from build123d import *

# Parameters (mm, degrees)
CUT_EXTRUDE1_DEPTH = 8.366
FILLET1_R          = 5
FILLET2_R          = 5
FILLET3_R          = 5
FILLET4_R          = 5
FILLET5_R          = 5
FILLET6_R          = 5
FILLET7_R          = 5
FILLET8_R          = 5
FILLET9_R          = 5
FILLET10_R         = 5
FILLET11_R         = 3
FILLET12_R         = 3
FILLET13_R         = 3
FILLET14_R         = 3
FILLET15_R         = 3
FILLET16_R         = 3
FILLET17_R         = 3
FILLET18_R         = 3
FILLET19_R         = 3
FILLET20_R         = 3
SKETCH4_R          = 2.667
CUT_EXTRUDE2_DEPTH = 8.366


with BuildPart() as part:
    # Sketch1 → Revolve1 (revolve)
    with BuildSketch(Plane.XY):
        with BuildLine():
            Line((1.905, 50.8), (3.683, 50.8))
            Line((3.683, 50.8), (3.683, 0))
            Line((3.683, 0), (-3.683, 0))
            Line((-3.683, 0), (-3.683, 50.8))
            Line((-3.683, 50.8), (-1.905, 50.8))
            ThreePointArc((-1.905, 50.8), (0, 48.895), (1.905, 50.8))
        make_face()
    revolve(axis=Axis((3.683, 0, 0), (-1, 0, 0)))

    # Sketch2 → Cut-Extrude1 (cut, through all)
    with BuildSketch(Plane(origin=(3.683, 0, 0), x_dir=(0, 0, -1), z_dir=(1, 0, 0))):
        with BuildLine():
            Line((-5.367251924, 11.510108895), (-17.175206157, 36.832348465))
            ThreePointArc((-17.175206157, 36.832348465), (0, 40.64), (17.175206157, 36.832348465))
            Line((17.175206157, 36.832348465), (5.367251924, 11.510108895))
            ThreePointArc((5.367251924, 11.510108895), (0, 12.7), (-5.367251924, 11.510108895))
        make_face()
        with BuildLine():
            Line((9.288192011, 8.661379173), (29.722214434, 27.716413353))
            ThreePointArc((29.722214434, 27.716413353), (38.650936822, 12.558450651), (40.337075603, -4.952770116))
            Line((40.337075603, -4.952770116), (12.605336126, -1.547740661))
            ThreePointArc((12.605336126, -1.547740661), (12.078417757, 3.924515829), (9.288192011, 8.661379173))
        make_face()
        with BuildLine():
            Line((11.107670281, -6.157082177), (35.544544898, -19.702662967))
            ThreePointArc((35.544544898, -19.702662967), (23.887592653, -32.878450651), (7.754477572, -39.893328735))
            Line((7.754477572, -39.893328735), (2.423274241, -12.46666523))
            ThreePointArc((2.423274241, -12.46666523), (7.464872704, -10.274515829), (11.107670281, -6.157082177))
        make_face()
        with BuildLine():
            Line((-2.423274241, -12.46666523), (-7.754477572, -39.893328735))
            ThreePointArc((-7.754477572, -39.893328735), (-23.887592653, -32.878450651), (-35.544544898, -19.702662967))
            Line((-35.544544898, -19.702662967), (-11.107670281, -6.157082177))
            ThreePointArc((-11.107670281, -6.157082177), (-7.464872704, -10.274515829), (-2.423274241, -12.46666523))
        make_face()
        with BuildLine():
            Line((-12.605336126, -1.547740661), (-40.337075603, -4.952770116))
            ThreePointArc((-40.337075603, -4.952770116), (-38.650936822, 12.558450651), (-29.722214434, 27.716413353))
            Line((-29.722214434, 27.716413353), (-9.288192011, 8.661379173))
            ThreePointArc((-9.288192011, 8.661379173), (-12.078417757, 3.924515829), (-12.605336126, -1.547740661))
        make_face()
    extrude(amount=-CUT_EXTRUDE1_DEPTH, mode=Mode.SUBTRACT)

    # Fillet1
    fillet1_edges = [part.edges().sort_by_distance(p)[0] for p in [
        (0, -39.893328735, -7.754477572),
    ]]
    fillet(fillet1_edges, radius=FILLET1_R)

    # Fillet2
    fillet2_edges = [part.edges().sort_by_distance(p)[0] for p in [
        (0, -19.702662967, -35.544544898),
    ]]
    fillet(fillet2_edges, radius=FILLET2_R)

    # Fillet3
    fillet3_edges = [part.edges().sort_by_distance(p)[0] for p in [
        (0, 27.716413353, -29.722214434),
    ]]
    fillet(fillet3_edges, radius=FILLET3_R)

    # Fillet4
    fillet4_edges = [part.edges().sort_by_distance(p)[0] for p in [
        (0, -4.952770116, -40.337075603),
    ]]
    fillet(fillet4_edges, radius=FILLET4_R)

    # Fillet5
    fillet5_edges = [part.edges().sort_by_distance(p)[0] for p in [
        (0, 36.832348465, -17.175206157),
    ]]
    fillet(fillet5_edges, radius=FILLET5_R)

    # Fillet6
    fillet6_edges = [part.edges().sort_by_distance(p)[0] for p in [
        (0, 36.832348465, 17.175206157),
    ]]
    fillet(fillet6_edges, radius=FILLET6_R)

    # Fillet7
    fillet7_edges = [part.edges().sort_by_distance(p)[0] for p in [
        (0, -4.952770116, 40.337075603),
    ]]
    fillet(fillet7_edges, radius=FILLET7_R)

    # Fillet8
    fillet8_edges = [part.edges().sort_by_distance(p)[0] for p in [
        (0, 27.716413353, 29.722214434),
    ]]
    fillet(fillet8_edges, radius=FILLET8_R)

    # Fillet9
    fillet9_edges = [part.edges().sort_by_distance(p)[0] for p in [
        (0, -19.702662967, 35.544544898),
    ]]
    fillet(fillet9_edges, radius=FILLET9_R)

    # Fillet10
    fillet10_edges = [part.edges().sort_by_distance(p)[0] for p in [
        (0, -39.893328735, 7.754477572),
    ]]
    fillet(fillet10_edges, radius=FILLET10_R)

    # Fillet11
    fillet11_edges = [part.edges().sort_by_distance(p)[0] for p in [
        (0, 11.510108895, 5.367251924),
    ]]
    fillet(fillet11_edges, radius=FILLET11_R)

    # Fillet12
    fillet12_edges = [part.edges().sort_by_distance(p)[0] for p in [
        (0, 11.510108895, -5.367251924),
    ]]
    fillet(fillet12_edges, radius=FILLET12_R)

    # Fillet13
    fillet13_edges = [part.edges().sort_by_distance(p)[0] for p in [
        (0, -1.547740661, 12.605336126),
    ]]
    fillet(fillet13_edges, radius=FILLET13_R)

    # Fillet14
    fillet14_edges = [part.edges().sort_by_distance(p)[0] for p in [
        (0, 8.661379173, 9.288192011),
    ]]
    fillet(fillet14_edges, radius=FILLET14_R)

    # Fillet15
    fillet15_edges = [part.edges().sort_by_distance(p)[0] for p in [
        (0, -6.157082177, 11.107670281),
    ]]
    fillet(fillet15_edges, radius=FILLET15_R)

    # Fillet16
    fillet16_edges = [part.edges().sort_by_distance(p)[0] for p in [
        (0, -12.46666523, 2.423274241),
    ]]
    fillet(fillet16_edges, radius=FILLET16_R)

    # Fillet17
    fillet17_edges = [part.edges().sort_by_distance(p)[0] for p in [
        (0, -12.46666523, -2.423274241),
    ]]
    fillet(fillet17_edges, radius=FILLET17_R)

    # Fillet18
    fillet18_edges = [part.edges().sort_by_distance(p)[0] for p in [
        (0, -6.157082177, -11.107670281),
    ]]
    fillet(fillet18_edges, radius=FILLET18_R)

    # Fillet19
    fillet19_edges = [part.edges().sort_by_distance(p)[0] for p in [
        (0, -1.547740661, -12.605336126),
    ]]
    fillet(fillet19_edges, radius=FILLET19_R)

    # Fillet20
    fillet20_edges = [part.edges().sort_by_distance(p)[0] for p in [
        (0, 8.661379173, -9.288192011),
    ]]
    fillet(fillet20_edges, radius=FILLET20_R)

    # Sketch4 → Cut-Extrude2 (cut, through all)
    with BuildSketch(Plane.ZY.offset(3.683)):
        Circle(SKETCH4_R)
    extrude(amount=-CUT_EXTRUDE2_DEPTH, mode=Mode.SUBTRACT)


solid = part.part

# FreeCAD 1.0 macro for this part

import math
import FreeCAD as App
import Part
import Sketcher
from FreeCAD import Vector
Q = App.Units.Quantity


def edges_at(feature, points):
    """Names of the edges that pass closest to the given points."""
    edges = feature.Shape.Edges
    near = lambda p: min(range(len(edges)), key=lambda i: edges[i].distToShape(Part.Vertex(*p))[0])
    return sorted({f"Edge{near(p) + 1}" for p in points})

doc = App.newDocument("Part")
body = doc.addObject("PartDesign::Body", "Body")

# Sketch on XY plane
sketch1 = body.newObject("Sketcher::SketchObject", "Sketch")
sketch1.AttachmentSupport = (doc.getObject("XY_Plane"), [""])
sketch1.MapMode = "FlatFace"
sketch1.addGeometry(Part.LineSegment(Vector(3.7, 50.8, 0), Vector(1.9, 50.8, 0)), False)
sketch1.addGeometry(Part.ArcOfCircle(Part.Circle(Vector(0, 50.8, 0), Vector(0, 0, 1), 1.9), math.radians(180), math.radians(360)), False)
sketch1.addGeometry(Part.LineSegment(Vector(-1.9, 50.8, 0), Vector(-3.7, 50.8, 0)), False)
sketch1.addGeometry(Part.LineSegment(Vector(-3.7, 50.8, 0), Vector(-3.7, 0, 0)), False)
sketch1.addGeometry(Part.LineSegment(Vector(-3.7, 0, 0), Vector(3.7, 0, 0)), False)
sketch1.addGeometry(Part.LineSegment(Vector(3.7, 0, 0), Vector(3.7, 50.8, 0)), False)
sketch1.addConstraint(Sketcher.Constraint("Coincident", 0, 2, 1, 2))
sketch1.addConstraint(Sketcher.Constraint("Coincident", 1, 1, 2, 1))
sketch1.addConstraint(Sketcher.Constraint("Coincident", 2, 2, 3, 1))
sketch1.addConstraint(Sketcher.Constraint("Coincident", 3, 2, 4, 1))
sketch1.addConstraint(Sketcher.Constraint("Coincident", 4, 2, 5, 1))
sketch1.addConstraint(Sketcher.Constraint("Coincident", 5, 2, 0, 1))
sketch1.addConstraint(Sketcher.Constraint("Horizontal", 0))
sketch1.addConstraint(Sketcher.Constraint("Horizontal", 2))
sketch1.addConstraint(Sketcher.Constraint("Vertical", 3))
sketch1.addConstraint(Sketcher.Constraint("Horizontal", 4))
sketch1.addConstraint(Sketcher.Constraint("Vertical", 5))
sketch1.addConstraint(Sketcher.Constraint("Symmetric", 3, 2, 4, 2, -1, 1))
sketch1.addConstraint(Sketcher.Constraint("Symmetric", 0, 2, 1, 1, -2))
sketch1.addConstraint(Sketcher.Constraint("Horizontal", 1, 3, 0, 2))
sketch1.addConstraint(Sketcher.Constraint("DistanceY", 3, 2, 3, 1, Q("2 in")))
sketch1.addConstraint(Sketcher.Constraint("Radius", 1, Q("0.075 in")))
sketch1.addConstraint(Sketcher.Constraint("DistanceX", 0, 2, 0, 1, Q("0.07 in")))
revolution = body.newObject("PartDesign::Revolution", "Revolution")
revolution.Profile = sketch1
revolution.ReferenceAxis = (sketch1, ["H_Axis"])
revolution.Angle = 360

# Sketch on YZ plane
sketch2 = body.newObject("Sketcher::SketchObject", "Sketch001")
sketch2.AttachmentSupport = (doc.getObject("YZ_Plane"), [""])
sketch2.MapMode = "FlatFace"
sketch2.AttachmentOffset = App.Placement(Vector(0, 0, 0.145 * 25.4), App.Rotation())
sketch2.addGeometry(Part.LineSegment(Vector(37, 17, 0), Vector(12, 5, 0)), False)
sketch2.addGeometry(Part.ArcOfCircle(Part.Circle(Vector(0, 0, 0), Vector(0, 0, 1), 13), math.radians(-25), math.radians(25)), False)
sketch2.addGeometry(Part.LineSegment(Vector(12, -5, 0), Vector(37, -17, 0)), False)
sketch2.addGeometry(Part.ArcOfCircle(Part.Circle(Vector(0, 0, 0), Vector(0, 0, 1), 41), math.radians(-25), math.radians(25)), False)
sketch2.addGeometry(Part.LineSegment(Vector(28, -30, 0), Vector(9, -9, 0)), False)
sketch2.addGeometry(Part.ArcOfCircle(Part.Circle(Vector(0, 0, 0), Vector(0, 0, 1), 13), math.radians(-97), math.radians(-47)), False)
sketch2.addGeometry(Part.LineSegment(Vector(-2, -13, 0), Vector(-5, -40, 0)), False)
sketch2.addGeometry(Part.ArcOfCircle(Part.Circle(Vector(0, 0, 0), Vector(0, 0, 1), 41), math.radians(-97), math.radians(-47)), False)
sketch2.addGeometry(Part.LineSegment(Vector(-20, -36, 0), Vector(-6, -11, 0)), False)
sketch2.addGeometry(Part.ArcOfCircle(Part.Circle(Vector(0, 0, 0), Vector(0, 0, 1), 13), math.radians(-169), math.radians(-119)), False)
sketch2.addGeometry(Part.LineSegment(Vector(-12, -2, 0), Vector(-40, -8, 0)), False)
sketch2.addGeometry(Part.ArcOfCircle(Part.Circle(Vector(0, 0, 0), Vector(0, 0, 1), 41), math.radians(-169), math.radians(-119)), False)
sketch2.addGeometry(Part.LineSegment(Vector(-40, 8, 0), Vector(-12, 2, 0)), False)
sketch2.addGeometry(Part.ArcOfCircle(Part.Circle(Vector(0, 0, 0), Vector(0, 0, 1), 13), math.radians(119), math.radians(169)), False)
sketch2.addGeometry(Part.LineSegment(Vector(-6, 11, 0), Vector(-20, 36, 0)), False)
sketch2.addGeometry(Part.ArcOfCircle(Part.Circle(Vector(0, 0, 0), Vector(0, 0, 1), 41), math.radians(119), math.radians(169)), False)
sketch2.addGeometry(Part.LineSegment(Vector(-5, 40, 0), Vector(-2, 13, 0)), False)
sketch2.addGeometry(Part.ArcOfCircle(Part.Circle(Vector(0, 0, 0), Vector(0, 0, 1), 13), math.radians(47), math.radians(97)), False)
sketch2.addGeometry(Part.LineSegment(Vector(9, 9, 0), Vector(28, 30, 0)), False)
sketch2.addGeometry(Part.ArcOfCircle(Part.Circle(Vector(0, 0, 0), Vector(0, 0, 1), 41), math.radians(47), math.radians(97)), False)
sketch2.addConstraint(Sketcher.Constraint("Coincident", 0, 2, 1, 2))
sketch2.addConstraint(Sketcher.Constraint("Coincident", 1, 1, 2, 1))
sketch2.addConstraint(Sketcher.Constraint("Coincident", 2, 2, 3, 1))
sketch2.addConstraint(Sketcher.Constraint("Coincident", 3, 2, 0, 1))
sketch2.addConstraint(Sketcher.Constraint("Coincident", 4, 2, 5, 2))
sketch2.addConstraint(Sketcher.Constraint("Coincident", 5, 1, 6, 1))
sketch2.addConstraint(Sketcher.Constraint("Coincident", 6, 2, 7, 1))
sketch2.addConstraint(Sketcher.Constraint("Coincident", 7, 2, 4, 1))
sketch2.addConstraint(Sketcher.Constraint("Coincident", 8, 2, 9, 2))
sketch2.addConstraint(Sketcher.Constraint("Coincident", 9, 1, 10, 1))
sketch2.addConstraint(Sketcher.Constraint("Coincident", 10, 2, 11, 1))
sketch2.addConstraint(Sketcher.Constraint("Coincident", 11, 2, 8, 1))
sketch2.addConstraint(Sketcher.Constraint("Coincident", 12, 2, 13, 2))
sketch2.addConstraint(Sketcher.Constraint("Coincident", 13, 1, 14, 1))
sketch2.addConstraint(Sketcher.Constraint("Coincident", 14, 2, 15, 1))
sketch2.addConstraint(Sketcher.Constraint("Coincident", 15, 2, 12, 1))
sketch2.addConstraint(Sketcher.Constraint("Coincident", 16, 2, 17, 2))
sketch2.addConstraint(Sketcher.Constraint("Coincident", 17, 1, 18, 1))
sketch2.addConstraint(Sketcher.Constraint("Coincident", 18, 2, 19, 1))
sketch2.addConstraint(Sketcher.Constraint("Coincident", 19, 2, 16, 1))
sketch2.addConstraint(Sketcher.Constraint("Coincident", 1, 3, -1, 1))
sketch2.addConstraint(Sketcher.Constraint("Coincident", 3, 3, -1, 1))
sketch2.addConstraint(Sketcher.Constraint("Coincident", 5, 3, -1, 1))
sketch2.addConstraint(Sketcher.Constraint("Coincident", 7, 3, -1, 1))
sketch2.addConstraint(Sketcher.Constraint("Coincident", 9, 3, -1, 1))
sketch2.addConstraint(Sketcher.Constraint("Coincident", 11, 3, -1, 1))
sketch2.addConstraint(Sketcher.Constraint("Coincident", 13, 3, -1, 1))
sketch2.addConstraint(Sketcher.Constraint("Coincident", 15, 3, -1, 1))
sketch2.addConstraint(Sketcher.Constraint("Coincident", 17, 3, -1, 1))
sketch2.addConstraint(Sketcher.Constraint("Coincident", 19, 3, -1, 1))
sketch2.addConstraint(Sketcher.Constraint("Equal", 1, 5))
sketch2.addConstraint(Sketcher.Constraint("Equal", 3, 7))
sketch2.addConstraint(Sketcher.Constraint("Equal", 5, 9))
sketch2.addConstraint(Sketcher.Constraint("Equal", 7, 11))
sketch2.addConstraint(Sketcher.Constraint("Equal", 9, 13))
sketch2.addConstraint(Sketcher.Constraint("Equal", 11, 15))
sketch2.addConstraint(Sketcher.Constraint("Equal", 13, 17))
sketch2.addConstraint(Sketcher.Constraint("Equal", 15, 19))
sketch2.addConstraint(Sketcher.Constraint("Vertical", 0, 2, 1, 1))
sketch2.addConstraint(Sketcher.Constraint("Vertical", 2, 2, 3, 2))
sketch2.addConstraint(Sketcher.Constraint("Vertical", 9, 1, 12, 2))
sketch2.addConstraint(Sketcher.Constraint("Vertical", 8, 2, 13, 1))
sketch2.addConstraint(Sketcher.Constraint("Vertical", 11, 2, 14, 2))
sketch2.addConstraint(Sketcher.Constraint("Vertical", 10, 2, 15, 2))
sketch2.addConstraint(Sketcher.Constraint("Vertical", 5, 1, 16, 2))
sketch2.addConstraint(Sketcher.Constraint("Vertical", 4, 2, 17, 1))
sketch2.addConstraint(Sketcher.Constraint("Vertical", 7, 2, 18, 2))
sketch2.addConstraint(Sketcher.Constraint("Vertical", 6, 2, 19, 2))
sketch2.addConstraint(Sketcher.Constraint("Radius", 1, Q("0.5 in")))
sketch2.addConstraint(Sketcher.Constraint("Radius", 3, Q("1.6 in")))
sketch2.addConstraint(Sketcher.Constraint("Angle", 0, Q("-155 deg")))
sketch2.addConstraint(Sketcher.Constraint("Angle", 4, Q("133 deg")))
sketch2.addConstraint(Sketcher.Constraint("Angle", 6, Q("-97 deg")))
sketch2.addConstraint(Sketcher.Constraint("Angle", 8, Q("61 deg")))
sketch2.addConstraint(Sketcher.Constraint("Angle", 10, Q("-169 deg")))
sketch2.addConstraint(Sketcher.Constraint("DistanceX", -1, 1, 0, 2, 11.510109))
sketch2.addConstraint(Sketcher.Constraint("DistanceX", -1, 1, 4, 2, 8.661379))
sketch2.addConstraint(Sketcher.Constraint("DistanceX", 5, 1, -1, 1, 1.547741))
sketch2.addConstraint(Sketcher.Constraint("DistanceY", 8, 2, -1, 1, 11.10767))
sketch2.addConstraint(Sketcher.Constraint("DistanceX", 10, 2, -1, 1, 39.893329))
pocket1 = body.newObject("PartDesign::Pocket", "Pocket")
pocket1.Profile = sketch2
pocket1.Type = "ThroughAll"
doc.recompute()

fillet = body.newObject("PartDesign::Fillet", "Fillet")
fillet.Base = (pocket1, edges_at(pocket1, [(0, -39.893, -7.754)]))
fillet.Radius = 5
doc.recompute()

fillet2 = body.newObject("PartDesign::Fillet", "Fillet001")
fillet2.Base = (fillet, edges_at(fillet, [(0, -19.703, -35.545)]))
fillet2.Radius = 5
doc.recompute()

fillet3 = body.newObject("PartDesign::Fillet", "Fillet002")
fillet3.Base = (fillet2, edges_at(fillet2, [(0, 27.716, -29.722)]))
fillet3.Radius = 5
doc.recompute()

fillet4 = body.newObject("PartDesign::Fillet", "Fillet003")
fillet4.Base = (fillet3, edges_at(fillet3, [(0, -4.953, -40.337)]))
fillet4.Radius = 5
doc.recompute()

fillet5 = body.newObject("PartDesign::Fillet", "Fillet004")
fillet5.Base = (fillet4, edges_at(fillet4, [(0, 36.832, -17.175)]))
fillet5.Radius = 5
doc.recompute()

fillet6 = body.newObject("PartDesign::Fillet", "Fillet005")
fillet6.Base = (fillet5, edges_at(fillet5, [(0, 36.832, 17.175)]))
fillet6.Radius = 5
doc.recompute()

fillet7 = body.newObject("PartDesign::Fillet", "Fillet006")
fillet7.Base = (fillet6, edges_at(fillet6, [(0, -4.953, 40.337)]))
fillet7.Radius = 5
doc.recompute()

fillet8 = body.newObject("PartDesign::Fillet", "Fillet007")
fillet8.Base = (fillet7, edges_at(fillet7, [(0, 27.716, 29.722)]))
fillet8.Radius = 5
doc.recompute()

fillet9 = body.newObject("PartDesign::Fillet", "Fillet008")
fillet9.Base = (fillet8, edges_at(fillet8, [(0, -19.703, 35.545)]))
fillet9.Radius = 5
doc.recompute()

fillet10 = body.newObject("PartDesign::Fillet", "Fillet009")
fillet10.Base = (fillet9, edges_at(fillet9, [(0, -39.893, 7.754)]))
fillet10.Radius = 5
doc.recompute()

fillet11 = body.newObject("PartDesign::Fillet", "Fillet010")
fillet11.Base = (fillet10, edges_at(fillet10, [(0, 11.51, 5.367)]))
fillet11.Radius = 3
doc.recompute()

fillet12 = body.newObject("PartDesign::Fillet", "Fillet011")
fillet12.Base = (fillet11, edges_at(fillet11, [(0, 11.51, -5.367)]))
fillet12.Radius = 3
doc.recompute()

fillet13 = body.newObject("PartDesign::Fillet", "Fillet012")
fillet13.Base = (fillet12, edges_at(fillet12, [(0, -1.548, 12.605)]))
fillet13.Radius = 3
doc.recompute()

fillet14 = body.newObject("PartDesign::Fillet", "Fillet013")
fillet14.Base = (fillet13, edges_at(fillet13, [(0, 8.661, 9.288)]))
fillet14.Radius = 3
doc.recompute()

fillet15 = body.newObject("PartDesign::Fillet", "Fillet014")
fillet15.Base = (fillet14, edges_at(fillet14, [(0, -6.157, 11.108)]))
fillet15.Radius = 3
doc.recompute()

fillet16 = body.newObject("PartDesign::Fillet", "Fillet015")
fillet16.Base = (fillet15, edges_at(fillet15, [(0, -12.467, 2.423)]))
fillet16.Radius = 3
doc.recompute()

fillet17 = body.newObject("PartDesign::Fillet", "Fillet016")
fillet17.Base = (fillet16, edges_at(fillet16, [(0, -12.467, -2.423)]))
fillet17.Radius = 3
doc.recompute()

fillet18 = body.newObject("PartDesign::Fillet", "Fillet017")
fillet18.Base = (fillet17, edges_at(fillet17, [(0, -6.157, -11.108)]))
fillet18.Radius = 3
doc.recompute()

fillet19 = body.newObject("PartDesign::Fillet", "Fillet018")
fillet19.Base = (fillet18, edges_at(fillet18, [(0, -1.548, -12.605)]))
fillet19.Radius = 3
doc.recompute()

fillet20 = body.newObject("PartDesign::Fillet", "Fillet019")
fillet20.Base = (fillet19, edges_at(fillet19, [(0, 8.661, -9.288)]))
fillet20.Radius = 3

# Sketch on YZ plane
sketch3 = body.newObject("Sketcher::SketchObject", "Sketch002")
sketch3.AttachmentSupport = (doc.getObject("YZ_Plane"), [""])
sketch3.MapMode = "FlatFace"
sketch3.AttachmentOffset = App.Placement(Vector(0, 0, -0.145 * 25.4), App.Rotation())
sketch3.addGeometry(Part.Circle(Vector(0, 0, 0), Vector(0, 0, 1), 2.7), False)
sketch3.addConstraint(Sketcher.Constraint("Coincident", 0, 3, -1, 1))
sketch3.addConstraint(Sketcher.Constraint("Diameter", 0, Q("0.21 in")))
pocket2 = body.newObject("PartDesign::Pocket", "Pocket001")
pocket2.Profile = sketch3
pocket2.Type = "ThroughAll"
pocket2.Reversed = True

doc.recompute()
